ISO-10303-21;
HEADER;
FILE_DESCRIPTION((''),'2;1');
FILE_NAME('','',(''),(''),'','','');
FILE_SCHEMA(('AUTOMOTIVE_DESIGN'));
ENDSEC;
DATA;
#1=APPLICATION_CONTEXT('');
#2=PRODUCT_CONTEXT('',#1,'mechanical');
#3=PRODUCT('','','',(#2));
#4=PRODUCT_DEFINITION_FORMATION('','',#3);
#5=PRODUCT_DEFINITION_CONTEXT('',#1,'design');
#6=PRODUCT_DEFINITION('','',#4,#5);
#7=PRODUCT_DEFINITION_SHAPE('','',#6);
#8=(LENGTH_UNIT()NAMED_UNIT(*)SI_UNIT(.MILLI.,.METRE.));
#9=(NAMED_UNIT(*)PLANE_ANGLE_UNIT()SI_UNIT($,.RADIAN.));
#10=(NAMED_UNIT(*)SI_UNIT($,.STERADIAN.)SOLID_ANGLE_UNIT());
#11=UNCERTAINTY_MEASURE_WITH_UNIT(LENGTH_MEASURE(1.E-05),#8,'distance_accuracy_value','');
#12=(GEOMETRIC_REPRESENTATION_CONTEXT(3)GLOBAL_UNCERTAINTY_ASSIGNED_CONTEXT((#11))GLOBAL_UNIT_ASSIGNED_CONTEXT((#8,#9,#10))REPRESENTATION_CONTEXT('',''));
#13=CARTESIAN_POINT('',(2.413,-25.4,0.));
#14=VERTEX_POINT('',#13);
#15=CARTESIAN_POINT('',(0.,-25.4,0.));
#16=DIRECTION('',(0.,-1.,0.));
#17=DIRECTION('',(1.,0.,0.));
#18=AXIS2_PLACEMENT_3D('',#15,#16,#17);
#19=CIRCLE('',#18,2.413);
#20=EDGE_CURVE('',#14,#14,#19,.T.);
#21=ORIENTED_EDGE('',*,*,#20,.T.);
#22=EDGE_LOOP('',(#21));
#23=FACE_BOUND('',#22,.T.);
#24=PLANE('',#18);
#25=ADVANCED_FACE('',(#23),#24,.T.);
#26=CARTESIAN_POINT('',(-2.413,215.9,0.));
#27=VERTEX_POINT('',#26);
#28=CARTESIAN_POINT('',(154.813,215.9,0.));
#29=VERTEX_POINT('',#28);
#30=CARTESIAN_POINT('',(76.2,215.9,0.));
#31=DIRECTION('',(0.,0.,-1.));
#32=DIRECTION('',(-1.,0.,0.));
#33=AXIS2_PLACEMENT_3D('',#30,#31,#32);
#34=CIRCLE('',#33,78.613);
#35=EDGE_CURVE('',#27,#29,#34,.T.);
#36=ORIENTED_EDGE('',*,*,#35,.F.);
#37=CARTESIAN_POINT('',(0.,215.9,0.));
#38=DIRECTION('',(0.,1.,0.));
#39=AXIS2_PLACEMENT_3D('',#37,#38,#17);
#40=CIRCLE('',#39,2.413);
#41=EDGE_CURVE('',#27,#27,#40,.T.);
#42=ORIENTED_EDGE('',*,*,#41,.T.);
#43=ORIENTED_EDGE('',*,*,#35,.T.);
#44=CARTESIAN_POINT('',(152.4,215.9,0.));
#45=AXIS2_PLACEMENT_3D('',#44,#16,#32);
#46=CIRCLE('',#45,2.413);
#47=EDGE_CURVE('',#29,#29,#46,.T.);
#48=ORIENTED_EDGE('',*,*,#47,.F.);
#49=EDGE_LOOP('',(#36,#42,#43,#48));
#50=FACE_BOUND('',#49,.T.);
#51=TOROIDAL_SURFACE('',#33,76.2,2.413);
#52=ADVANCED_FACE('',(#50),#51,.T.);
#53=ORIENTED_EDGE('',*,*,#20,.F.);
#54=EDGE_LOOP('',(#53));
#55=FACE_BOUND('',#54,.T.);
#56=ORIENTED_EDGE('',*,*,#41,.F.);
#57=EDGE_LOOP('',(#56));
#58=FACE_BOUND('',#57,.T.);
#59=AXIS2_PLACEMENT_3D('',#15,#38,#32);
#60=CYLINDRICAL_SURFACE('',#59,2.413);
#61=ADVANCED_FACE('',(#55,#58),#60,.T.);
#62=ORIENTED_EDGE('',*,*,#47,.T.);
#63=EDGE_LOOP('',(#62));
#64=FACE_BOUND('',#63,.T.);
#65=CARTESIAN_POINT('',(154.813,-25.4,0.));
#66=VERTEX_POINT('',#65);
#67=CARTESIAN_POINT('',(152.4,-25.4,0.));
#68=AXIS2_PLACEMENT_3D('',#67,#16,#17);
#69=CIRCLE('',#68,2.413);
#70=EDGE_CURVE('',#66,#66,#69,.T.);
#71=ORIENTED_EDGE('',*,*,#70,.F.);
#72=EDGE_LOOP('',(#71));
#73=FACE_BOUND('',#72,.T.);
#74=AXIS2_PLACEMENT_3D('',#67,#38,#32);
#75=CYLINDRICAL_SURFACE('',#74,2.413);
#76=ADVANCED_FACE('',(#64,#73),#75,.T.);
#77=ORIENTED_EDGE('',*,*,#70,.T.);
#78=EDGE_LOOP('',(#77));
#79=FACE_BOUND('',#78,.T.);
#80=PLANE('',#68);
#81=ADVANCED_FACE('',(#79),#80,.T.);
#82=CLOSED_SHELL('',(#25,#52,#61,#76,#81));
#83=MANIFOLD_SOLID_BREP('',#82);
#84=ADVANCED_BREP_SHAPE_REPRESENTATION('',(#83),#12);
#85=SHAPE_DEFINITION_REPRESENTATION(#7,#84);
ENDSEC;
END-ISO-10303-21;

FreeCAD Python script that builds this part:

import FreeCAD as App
import Part
import Sketcher
from FreeCAD import Vector
Q = App.Units.Quantity

doc = App.newDocument("Part")
body = doc.addObject("PartDesign::Body", "Body")

sketch1 = doc.addObject("Sketcher::SketchObject", "Sketch")
body.addObject(sketch1)
sketch1.AttachmentSupport = (doc.XZ_Plane, [""])
sketch1.MapMode = "FlatFace"
sketch1.AttachmentOffset = App.Placement(Vector(0, 0, -8.5 * 25.4), App.Rotation())
sketch1.addGeometry(Part.Circle(Vector(152.4, 0, 0), Vector(0, 0, 1), 2.4), False)
sketch1.addGeometry(Part.LineSegment(Vector(76.2, 0, 0), Vector(76.2, 10, 0)), True)
sketch1.addConstraint([
    Sketcher.Constraint("Vertical", 1),
    Sketcher.Constraint("PointOnObject", 0, 3, -1),
    Sketcher.Constraint("PointOnObject", 1, 1, -1),
    Sketcher.Constraint("Diameter", 0, Q("0.19 in")),
    Sketcher.Constraint("DistanceX", -1, 1, 0, 3, Q("6 in")),
    Sketcher.Constraint("DistanceX", -1, 1, 1, 1, Q("3 in")),
    Sketcher.Constraint("DistanceY", 1, 1, 1, 2, 10.0),
])
revolution = doc.addObject("PartDesign::Revolution", "Revolution")
body.addObject(revolution)
revolution.Profile = sketch1
revolution.ReferenceAxis = (sketch1, ["Axis0"])
revolution.Angle = 180

sketch2 = doc.addObject("Sketcher::SketchObject", "Sketch001")
body.addObject(sketch2)
sketch2.AttachmentSupport = (doc.XZ_Plane, [""])
sketch2.MapMode = "FlatFace"
sketch2.AttachmentOffset = App.Placement(Vector(0, 0, -8.5 * 25.4), App.Rotation())
sketch2.addGeometry(Part.Circle(Vector(152.4, 0, 0), Vector(0, 0, 1), 2.4), False)
sketch2.addConstraint([
    Sketcher.Constraint("PointOnObject", 0, 3, -1),
    Sketcher.Constraint("Diameter", 0, Q("0.19 in")),
    Sketcher.Constraint("DistanceX", -1, 1, 0, 3, Q("6 in")),
])
pad1 = doc.addObject("PartDesign::Pad", "Pad")
body.addObject(pad1)
pad1.Profile = sketch2
pad1.Length = Q("9.5 in")

sketch3 = doc.addObject("Sketcher::SketchObject", "Sketch002")
body.addObject(sketch3)
sketch3.AttachmentSupport = (doc.XZ_Plane, [""])
sketch3.MapMode = "FlatFace"
sketch3.AttachmentOffset = App.Placement(Vector(0, 0, -8.5 * 25.4), App.Rotation())
sketch3.addGeometry(Part.Circle(Vector(0, 0, 0), Vector(0, 0, 1), 2.4), False)
sketch3.addConstraint([
    Sketcher.Constraint("Coincident", 0, 3, -1, 1),
    Sketcher.Constraint("Diameter", 0, Q("0.19 in")),
])
pad2 = doc.addObject("PartDesign::Pad", "Pad001")
body.addObject(pad2)
pad2.Profile = sketch3
pad2.Length = Q("9.5 in")

doc.recompute()
